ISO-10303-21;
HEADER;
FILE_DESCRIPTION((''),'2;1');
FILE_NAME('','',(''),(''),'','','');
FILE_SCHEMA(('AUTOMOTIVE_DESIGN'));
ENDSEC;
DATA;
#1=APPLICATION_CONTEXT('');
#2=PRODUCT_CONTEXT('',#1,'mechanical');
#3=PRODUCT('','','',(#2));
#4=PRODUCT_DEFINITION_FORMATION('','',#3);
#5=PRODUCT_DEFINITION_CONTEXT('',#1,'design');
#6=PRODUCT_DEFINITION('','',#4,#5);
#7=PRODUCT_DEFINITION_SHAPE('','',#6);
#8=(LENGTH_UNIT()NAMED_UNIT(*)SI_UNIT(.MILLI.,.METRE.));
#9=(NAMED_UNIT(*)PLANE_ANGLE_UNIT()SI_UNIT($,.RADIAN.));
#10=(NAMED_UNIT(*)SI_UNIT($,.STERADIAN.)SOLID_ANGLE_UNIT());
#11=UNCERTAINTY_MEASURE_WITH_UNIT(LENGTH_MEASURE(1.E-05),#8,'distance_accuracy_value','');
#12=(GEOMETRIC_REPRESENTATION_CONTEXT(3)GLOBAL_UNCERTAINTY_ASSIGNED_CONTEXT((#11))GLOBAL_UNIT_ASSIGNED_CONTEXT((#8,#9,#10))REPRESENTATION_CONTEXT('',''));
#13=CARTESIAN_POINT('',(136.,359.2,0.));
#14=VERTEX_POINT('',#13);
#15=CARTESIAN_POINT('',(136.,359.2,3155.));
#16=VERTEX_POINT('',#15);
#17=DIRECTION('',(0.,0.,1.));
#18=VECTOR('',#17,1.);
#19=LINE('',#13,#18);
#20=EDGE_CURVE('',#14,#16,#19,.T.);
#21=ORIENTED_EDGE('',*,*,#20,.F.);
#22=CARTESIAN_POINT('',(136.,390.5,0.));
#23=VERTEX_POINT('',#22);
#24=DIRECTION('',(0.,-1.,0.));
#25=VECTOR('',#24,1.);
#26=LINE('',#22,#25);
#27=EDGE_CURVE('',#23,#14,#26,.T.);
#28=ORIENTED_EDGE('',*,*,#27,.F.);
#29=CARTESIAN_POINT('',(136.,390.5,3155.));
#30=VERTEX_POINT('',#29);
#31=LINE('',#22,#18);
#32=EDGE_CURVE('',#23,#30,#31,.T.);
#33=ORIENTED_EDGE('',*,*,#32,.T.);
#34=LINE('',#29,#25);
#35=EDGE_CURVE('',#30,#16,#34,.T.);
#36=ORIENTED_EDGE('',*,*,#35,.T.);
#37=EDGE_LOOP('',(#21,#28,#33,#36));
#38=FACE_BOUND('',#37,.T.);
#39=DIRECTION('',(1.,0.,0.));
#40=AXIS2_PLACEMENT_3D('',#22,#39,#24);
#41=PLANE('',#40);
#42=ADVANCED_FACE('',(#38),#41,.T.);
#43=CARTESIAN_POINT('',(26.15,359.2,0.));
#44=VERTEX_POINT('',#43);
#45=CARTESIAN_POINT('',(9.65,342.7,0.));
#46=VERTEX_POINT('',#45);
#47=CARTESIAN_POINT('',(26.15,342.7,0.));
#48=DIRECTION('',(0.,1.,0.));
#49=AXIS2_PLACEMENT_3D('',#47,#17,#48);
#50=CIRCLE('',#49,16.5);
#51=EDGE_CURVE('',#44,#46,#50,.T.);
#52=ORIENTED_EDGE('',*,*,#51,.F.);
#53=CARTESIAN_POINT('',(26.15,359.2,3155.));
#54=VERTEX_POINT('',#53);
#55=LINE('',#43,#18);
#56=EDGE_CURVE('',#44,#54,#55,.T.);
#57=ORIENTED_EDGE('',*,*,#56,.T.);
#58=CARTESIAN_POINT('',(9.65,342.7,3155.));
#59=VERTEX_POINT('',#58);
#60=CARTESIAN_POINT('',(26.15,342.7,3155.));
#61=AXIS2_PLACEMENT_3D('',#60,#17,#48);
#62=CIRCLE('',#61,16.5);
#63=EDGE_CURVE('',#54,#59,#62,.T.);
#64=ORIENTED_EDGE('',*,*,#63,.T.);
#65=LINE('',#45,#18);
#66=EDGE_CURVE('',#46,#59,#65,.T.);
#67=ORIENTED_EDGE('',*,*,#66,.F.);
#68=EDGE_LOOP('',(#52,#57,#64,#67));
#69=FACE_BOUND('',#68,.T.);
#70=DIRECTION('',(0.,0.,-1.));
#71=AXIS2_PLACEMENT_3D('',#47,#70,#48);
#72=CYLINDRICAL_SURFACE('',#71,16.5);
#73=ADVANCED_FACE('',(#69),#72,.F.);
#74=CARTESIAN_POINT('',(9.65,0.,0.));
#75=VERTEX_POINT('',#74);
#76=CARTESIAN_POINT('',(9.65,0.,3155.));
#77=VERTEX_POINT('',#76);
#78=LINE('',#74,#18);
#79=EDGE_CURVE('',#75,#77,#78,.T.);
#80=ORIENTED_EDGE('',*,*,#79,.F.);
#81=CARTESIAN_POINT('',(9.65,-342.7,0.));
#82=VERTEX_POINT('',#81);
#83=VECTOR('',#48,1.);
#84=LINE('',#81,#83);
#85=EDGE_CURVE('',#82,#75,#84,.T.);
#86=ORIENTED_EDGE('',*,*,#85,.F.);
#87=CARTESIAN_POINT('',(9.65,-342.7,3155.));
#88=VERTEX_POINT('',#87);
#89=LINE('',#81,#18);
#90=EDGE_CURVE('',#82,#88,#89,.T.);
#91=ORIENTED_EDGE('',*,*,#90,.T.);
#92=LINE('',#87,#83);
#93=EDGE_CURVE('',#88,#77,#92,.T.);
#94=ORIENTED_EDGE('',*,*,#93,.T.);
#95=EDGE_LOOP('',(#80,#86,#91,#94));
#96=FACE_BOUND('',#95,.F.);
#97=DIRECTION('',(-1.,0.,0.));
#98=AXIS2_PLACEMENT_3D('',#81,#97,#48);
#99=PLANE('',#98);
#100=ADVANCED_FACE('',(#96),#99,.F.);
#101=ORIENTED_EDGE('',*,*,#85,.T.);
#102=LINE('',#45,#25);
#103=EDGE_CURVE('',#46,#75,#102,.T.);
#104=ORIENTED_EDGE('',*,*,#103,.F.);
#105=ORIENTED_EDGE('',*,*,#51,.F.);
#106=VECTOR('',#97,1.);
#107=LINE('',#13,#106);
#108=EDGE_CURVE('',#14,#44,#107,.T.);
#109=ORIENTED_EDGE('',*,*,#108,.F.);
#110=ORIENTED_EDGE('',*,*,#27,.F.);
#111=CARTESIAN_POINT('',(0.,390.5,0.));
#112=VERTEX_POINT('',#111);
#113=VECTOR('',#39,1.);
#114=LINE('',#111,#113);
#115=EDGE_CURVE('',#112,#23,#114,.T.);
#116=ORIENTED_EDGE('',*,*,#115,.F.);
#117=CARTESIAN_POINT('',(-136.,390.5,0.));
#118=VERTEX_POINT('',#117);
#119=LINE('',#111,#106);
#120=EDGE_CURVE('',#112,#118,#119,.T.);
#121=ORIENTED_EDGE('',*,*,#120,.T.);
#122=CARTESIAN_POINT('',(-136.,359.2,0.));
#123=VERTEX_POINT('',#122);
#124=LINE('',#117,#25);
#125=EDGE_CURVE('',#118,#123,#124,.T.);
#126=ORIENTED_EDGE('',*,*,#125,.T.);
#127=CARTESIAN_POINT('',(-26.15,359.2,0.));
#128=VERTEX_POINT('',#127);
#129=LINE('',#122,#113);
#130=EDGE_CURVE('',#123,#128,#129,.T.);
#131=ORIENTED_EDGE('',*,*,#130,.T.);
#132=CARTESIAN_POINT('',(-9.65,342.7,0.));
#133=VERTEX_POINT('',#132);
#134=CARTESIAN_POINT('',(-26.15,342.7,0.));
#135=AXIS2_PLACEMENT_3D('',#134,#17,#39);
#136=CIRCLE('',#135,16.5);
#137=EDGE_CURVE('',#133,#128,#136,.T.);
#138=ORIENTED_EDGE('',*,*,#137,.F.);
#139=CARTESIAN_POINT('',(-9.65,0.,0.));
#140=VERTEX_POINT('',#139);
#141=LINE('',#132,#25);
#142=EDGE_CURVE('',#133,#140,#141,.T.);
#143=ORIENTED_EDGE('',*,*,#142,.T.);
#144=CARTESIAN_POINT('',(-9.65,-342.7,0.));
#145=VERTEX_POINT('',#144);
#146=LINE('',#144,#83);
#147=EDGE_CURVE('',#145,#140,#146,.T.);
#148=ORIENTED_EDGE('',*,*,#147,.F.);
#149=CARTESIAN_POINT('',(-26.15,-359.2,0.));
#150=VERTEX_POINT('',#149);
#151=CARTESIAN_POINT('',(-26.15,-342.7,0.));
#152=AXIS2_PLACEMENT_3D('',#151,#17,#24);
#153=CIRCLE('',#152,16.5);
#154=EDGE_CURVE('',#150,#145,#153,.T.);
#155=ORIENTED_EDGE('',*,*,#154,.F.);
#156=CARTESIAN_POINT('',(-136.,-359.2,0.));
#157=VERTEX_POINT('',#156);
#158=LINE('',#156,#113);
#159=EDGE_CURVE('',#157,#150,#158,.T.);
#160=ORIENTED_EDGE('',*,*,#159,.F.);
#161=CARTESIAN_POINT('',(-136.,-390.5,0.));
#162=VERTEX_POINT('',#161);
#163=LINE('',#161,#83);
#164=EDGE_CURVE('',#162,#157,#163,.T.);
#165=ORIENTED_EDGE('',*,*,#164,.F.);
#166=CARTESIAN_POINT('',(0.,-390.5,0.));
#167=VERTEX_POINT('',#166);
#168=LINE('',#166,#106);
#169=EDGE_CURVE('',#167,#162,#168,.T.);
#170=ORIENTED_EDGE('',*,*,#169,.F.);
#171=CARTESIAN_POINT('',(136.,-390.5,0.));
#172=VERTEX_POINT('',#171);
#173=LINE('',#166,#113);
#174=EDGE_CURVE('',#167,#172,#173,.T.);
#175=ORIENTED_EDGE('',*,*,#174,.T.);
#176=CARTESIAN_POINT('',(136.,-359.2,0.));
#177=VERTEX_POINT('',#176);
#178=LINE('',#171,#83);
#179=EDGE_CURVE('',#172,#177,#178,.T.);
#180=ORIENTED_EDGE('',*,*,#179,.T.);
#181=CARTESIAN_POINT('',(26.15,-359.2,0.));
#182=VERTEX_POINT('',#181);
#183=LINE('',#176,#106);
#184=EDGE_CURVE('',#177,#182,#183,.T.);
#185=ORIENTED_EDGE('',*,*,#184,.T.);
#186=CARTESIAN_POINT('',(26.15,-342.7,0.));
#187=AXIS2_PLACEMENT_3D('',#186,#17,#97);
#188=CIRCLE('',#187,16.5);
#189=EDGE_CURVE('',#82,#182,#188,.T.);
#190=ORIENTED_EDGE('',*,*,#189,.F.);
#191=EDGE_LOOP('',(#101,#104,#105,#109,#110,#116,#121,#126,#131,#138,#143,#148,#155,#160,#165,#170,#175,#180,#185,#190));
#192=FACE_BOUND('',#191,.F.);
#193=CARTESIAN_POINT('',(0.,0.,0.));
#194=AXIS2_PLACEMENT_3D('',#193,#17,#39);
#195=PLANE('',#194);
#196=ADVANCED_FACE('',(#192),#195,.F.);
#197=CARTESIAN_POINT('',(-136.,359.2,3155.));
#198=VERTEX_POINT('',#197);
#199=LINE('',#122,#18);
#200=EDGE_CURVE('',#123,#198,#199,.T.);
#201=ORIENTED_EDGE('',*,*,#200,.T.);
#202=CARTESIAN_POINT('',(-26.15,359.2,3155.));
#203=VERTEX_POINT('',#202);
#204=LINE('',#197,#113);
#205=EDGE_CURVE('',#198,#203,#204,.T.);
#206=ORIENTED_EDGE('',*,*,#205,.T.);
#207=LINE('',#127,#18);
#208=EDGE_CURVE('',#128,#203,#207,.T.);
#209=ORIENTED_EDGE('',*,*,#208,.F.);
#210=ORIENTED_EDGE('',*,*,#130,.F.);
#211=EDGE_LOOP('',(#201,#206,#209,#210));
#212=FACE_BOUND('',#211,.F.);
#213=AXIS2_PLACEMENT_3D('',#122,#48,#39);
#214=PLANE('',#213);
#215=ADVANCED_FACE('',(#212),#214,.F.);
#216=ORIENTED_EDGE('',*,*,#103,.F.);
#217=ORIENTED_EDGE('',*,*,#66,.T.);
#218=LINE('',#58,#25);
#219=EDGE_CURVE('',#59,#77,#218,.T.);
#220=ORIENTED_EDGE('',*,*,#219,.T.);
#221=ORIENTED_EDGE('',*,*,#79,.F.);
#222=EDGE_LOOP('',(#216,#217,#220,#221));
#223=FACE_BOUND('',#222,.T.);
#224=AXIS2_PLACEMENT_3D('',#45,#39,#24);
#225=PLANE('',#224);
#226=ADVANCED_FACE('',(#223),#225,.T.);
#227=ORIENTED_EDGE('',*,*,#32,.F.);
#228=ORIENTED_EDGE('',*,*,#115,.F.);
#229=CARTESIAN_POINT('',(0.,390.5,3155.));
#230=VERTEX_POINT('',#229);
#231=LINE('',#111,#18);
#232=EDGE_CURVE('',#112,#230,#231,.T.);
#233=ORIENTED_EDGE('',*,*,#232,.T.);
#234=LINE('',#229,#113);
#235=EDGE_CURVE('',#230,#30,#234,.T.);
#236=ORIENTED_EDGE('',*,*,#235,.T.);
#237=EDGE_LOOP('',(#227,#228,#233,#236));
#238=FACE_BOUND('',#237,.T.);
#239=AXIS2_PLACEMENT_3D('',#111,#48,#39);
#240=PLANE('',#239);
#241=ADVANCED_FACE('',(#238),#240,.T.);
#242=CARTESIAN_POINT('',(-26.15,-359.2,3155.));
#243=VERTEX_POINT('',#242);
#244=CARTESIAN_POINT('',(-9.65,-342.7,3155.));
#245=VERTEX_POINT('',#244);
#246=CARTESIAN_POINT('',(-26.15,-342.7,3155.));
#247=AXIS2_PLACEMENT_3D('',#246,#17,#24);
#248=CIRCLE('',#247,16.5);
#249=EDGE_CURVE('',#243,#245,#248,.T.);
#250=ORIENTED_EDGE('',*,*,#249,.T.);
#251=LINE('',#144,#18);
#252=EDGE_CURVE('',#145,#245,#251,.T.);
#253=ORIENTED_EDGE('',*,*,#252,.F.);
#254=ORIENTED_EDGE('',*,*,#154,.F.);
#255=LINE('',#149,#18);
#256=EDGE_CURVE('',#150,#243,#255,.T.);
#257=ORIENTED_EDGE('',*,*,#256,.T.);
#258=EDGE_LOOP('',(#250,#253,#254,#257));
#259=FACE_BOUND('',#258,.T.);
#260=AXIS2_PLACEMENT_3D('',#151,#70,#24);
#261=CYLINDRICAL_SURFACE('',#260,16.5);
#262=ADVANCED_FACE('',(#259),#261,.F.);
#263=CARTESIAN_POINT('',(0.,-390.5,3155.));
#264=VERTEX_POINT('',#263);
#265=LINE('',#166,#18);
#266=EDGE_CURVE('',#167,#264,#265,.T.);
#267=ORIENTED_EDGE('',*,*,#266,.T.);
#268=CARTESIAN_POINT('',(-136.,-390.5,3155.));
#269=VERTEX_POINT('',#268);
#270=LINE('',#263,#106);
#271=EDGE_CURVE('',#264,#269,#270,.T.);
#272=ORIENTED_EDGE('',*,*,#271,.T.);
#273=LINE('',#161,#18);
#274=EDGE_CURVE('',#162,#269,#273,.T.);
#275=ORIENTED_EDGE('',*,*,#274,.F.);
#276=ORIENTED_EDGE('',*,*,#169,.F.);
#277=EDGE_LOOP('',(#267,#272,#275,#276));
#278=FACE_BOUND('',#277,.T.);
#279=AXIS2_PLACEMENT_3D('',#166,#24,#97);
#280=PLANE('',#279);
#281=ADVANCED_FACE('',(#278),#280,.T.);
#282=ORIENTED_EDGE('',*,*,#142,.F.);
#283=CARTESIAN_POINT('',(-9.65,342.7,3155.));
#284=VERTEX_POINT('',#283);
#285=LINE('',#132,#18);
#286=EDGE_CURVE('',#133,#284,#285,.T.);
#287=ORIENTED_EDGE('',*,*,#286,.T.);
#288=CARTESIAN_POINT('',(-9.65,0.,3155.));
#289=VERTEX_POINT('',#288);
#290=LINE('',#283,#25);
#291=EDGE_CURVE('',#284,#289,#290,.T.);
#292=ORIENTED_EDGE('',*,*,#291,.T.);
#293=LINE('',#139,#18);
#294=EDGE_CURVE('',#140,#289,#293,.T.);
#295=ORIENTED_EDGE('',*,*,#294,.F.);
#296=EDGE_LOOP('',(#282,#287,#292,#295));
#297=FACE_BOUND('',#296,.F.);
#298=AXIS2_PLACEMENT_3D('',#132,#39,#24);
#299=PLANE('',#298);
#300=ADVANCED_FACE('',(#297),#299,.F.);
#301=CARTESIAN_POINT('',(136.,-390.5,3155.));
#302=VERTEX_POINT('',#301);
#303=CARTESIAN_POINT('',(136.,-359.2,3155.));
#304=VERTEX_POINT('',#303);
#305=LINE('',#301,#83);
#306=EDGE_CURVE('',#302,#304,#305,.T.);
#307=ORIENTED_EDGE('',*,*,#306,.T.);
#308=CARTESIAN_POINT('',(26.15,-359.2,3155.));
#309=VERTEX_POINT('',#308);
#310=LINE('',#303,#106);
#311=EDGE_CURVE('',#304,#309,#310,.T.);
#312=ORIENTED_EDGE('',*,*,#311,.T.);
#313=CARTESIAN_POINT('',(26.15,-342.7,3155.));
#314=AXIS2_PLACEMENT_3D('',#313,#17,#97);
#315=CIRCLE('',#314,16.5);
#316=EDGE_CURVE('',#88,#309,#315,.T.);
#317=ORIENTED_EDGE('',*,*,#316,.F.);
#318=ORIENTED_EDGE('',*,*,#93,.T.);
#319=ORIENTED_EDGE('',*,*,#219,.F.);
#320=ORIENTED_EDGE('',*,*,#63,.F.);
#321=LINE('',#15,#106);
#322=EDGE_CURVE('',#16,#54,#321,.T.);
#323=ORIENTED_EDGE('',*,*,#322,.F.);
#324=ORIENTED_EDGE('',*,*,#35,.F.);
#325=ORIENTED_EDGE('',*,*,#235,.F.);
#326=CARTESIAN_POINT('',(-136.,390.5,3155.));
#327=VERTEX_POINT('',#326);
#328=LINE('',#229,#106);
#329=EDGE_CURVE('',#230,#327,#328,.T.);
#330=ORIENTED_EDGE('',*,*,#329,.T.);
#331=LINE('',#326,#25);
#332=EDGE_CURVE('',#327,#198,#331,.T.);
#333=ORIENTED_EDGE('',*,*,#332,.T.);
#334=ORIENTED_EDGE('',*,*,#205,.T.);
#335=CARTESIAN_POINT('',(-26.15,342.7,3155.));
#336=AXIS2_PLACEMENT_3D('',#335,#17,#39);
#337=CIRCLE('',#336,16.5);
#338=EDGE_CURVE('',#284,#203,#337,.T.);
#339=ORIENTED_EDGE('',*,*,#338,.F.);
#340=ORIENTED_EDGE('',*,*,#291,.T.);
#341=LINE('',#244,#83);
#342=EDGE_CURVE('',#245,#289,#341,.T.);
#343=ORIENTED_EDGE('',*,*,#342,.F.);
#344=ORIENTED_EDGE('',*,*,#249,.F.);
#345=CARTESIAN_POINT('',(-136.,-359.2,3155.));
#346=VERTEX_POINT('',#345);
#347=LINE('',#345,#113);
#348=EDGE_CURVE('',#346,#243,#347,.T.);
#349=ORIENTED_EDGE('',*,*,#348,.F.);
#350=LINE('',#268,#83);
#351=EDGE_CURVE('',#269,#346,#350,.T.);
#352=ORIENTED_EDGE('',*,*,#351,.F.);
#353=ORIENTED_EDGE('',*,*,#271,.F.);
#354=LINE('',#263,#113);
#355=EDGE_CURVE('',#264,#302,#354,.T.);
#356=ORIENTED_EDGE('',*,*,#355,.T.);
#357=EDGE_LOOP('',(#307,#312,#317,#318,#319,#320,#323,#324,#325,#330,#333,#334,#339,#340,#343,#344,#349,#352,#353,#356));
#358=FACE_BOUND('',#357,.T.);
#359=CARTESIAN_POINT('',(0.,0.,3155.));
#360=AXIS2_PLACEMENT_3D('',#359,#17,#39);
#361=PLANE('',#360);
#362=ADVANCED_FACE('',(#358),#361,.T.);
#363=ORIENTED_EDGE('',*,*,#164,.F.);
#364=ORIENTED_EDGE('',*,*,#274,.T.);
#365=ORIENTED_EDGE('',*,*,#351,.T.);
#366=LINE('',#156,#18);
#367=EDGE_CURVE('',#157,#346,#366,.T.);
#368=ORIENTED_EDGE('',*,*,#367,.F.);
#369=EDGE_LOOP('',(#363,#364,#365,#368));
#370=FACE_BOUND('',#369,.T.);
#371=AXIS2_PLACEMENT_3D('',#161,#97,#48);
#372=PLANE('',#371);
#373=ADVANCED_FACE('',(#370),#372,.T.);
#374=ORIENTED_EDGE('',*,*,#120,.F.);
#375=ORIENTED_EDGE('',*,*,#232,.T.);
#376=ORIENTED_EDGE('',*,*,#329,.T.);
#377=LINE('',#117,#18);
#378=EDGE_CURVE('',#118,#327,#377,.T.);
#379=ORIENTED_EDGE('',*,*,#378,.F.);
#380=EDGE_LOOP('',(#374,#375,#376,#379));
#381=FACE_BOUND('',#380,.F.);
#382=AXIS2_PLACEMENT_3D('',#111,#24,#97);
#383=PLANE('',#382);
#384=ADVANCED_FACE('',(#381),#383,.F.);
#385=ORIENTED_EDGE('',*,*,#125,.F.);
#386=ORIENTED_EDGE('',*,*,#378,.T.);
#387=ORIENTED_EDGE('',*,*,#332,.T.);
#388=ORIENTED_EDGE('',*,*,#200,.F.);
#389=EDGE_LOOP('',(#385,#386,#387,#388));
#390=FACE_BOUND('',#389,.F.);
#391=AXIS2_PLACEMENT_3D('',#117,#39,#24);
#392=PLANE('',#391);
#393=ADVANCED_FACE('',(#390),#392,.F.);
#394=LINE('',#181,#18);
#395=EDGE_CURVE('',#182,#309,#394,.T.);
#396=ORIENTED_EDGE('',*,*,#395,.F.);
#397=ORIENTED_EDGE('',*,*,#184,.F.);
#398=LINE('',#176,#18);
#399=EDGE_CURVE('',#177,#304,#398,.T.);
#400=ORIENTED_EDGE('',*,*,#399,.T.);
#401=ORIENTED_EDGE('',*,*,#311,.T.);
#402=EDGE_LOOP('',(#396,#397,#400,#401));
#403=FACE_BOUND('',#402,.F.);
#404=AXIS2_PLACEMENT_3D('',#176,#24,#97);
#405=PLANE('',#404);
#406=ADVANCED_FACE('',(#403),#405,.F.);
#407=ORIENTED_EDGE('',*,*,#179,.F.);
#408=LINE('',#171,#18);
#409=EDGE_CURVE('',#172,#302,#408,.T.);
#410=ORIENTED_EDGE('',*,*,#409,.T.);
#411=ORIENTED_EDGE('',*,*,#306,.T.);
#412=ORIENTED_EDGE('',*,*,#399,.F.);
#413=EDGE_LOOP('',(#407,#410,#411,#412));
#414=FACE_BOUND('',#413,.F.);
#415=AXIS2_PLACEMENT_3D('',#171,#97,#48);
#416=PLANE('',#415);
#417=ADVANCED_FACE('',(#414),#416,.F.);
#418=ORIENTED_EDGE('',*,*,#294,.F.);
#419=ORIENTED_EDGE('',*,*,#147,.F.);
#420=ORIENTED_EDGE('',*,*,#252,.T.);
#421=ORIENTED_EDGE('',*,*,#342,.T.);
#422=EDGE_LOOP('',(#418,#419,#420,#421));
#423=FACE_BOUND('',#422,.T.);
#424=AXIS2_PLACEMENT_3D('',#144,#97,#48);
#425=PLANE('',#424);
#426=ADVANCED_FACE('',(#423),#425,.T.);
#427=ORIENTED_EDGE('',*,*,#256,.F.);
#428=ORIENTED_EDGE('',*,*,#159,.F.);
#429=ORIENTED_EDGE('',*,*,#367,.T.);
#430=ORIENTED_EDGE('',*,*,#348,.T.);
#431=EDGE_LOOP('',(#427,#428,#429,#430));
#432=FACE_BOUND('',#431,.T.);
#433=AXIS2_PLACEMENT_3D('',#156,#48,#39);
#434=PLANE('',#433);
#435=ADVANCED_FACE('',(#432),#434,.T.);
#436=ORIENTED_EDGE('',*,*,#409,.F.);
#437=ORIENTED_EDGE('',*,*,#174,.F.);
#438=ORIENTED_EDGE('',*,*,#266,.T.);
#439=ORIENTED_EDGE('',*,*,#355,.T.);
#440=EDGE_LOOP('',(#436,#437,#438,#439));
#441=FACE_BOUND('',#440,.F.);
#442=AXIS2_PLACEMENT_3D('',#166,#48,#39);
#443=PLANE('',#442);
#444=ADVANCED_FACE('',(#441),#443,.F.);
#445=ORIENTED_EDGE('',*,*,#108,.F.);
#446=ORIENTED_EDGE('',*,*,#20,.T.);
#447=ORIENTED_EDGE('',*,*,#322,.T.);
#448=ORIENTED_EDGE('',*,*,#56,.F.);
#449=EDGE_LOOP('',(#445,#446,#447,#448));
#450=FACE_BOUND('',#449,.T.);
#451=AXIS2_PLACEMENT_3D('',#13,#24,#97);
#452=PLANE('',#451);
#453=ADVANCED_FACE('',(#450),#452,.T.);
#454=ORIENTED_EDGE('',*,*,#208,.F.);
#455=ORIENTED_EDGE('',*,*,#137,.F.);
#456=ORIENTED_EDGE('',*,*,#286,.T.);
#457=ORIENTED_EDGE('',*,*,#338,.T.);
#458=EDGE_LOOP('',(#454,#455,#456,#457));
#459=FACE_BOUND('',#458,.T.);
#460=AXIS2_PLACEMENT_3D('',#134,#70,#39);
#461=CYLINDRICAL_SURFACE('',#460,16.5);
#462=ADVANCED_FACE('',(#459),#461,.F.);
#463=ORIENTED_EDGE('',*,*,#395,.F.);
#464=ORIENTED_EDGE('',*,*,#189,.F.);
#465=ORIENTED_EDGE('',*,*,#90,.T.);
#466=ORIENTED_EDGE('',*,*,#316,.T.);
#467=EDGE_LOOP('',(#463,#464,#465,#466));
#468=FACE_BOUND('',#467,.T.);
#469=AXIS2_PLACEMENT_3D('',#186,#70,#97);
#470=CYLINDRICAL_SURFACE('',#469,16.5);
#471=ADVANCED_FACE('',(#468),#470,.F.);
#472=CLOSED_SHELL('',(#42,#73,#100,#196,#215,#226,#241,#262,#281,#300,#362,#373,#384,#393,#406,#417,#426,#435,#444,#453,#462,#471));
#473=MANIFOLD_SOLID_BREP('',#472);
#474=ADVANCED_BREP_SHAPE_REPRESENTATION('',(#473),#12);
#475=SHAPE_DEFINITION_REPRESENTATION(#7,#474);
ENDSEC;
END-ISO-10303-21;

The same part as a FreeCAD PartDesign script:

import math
import FreeCAD as App
import Part
import Sketcher

V = App.Vector
Q = App.Units.Quantity

doc = App.newDocument("Part")
body = doc.addObject("PartDesign::Body", "Body")

sketch1 = body.newObject("Sketcher::SketchObject", "Sketch")
sketch1.AttachmentSupport = (doc.getObject("XY_Plane"), [""])
sketch1.MapMode = "FlatFace"
sketch1.addGeometry(Part.LineSegment(V(-136, -359.2, 0), V(-136, -390.5, 0)), False)
sketch1.addGeometry(Part.LineSegment(V(-136, -390.5, 0), V(136, -390.5, 0)), False)
sketch1.addGeometry(Part.LineSegment(V(136, -390.5, 0), V(136, -359.2, 0)), False)
sketch1.addGeometry(Part.LineSegment(V(136, -359.2, 0), V(26.15, -359.2, 0)), False)
sketch1.addGeometry(Part.ArcOfCircle(Part.Circle(V(26.15, -342.7, 0), V(0, 0, 1), 16.5), math.radians(180), math.radians(270)), False)
sketch1.addGeometry(Part.LineSegment(V(9.65, -342.7, 0), V(9.65, 342.7, 0)), False)
sketch1.addGeometry(Part.ArcOfCircle(Part.Circle(V(26.15, 342.7, 0), V(0, 0, 1), 16.5), math.radians(90), math.radians(180)), False)
sketch1.addGeometry(Part.LineSegment(V(26.15, 359.2, 0), V(136, 359.2, 0)), False)
sketch1.addGeometry(Part.LineSegment(V(136, 359.2, 0), V(136, 390.5, 0)), False)
sketch1.addGeometry(Part.LineSegment(V(136, 390.5, 0), V(-136, 390.5, 0)), False)
sketch1.addGeometry(Part.LineSegment(V(-136, 390.5, 0), V(-136, 359.2, 0)), False)
sketch1.addGeometry(Part.LineSegment(V(-136, 359.2, 0), V(-26.15, 359.2, 0)), False)
sketch1.addGeometry(Part.ArcOfCircle(Part.Circle(V(-26.15, 342.7, 0), V(0, 0, 1), 16.5), math.radians(0), math.radians(90)), False)
sketch1.addGeometry(Part.LineSegment(V(-9.65, 342.7, 0), V(-9.65, -342.7, 0)), False)
sketch1.addGeometry(Part.ArcOfCircle(Part.Circle(V(-26.15, -342.7, 0), V(0, 0, 1), 16.5), math.radians(-90), math.radians(0)), False)
sketch1.addGeometry(Part.LineSegment(V(-26.15, -359.2, 0), V(-136, -359.2, 0)), False)
sketch1.addConstraint(Sketcher.Constraint("Coincident", 0, 2, 1, 1))
sketch1.addConstraint(Sketcher.Constraint("Coincident", 1, 2, 2, 1))
sketch1.addConstraint(Sketcher.Constraint("Coincident", 2, 2, 3, 1))
sketch1.addConstraint(Sketcher.Constraint("Tangent", 3, 2, 4, 2))
sketch1.addConstraint(Sketcher.Constraint("Tangent", 4, 1, 5, 1))
sketch1.addConstraint(Sketcher.Constraint("Tangent", 5, 2, 6, 2))
sketch1.addConstraint(Sketcher.Constraint("Tangent", 6, 1, 7, 1))
sketch1.addConstraint(Sketcher.Constraint("Coincident", 7, 2, 8, 1))
sketch1.addConstraint(Sketcher.Constraint("Coincident", 8, 2, 9, 1))
sketch1.addConstraint(Sketcher.Constraint("Coincident", 9, 2, 10, 1))
sketch1.addConstraint(Sketcher.Constraint("Coincident", 10, 2, 11, 1))
sketch1.addConstraint(Sketcher.Constraint("Tangent", 11, 2, 12, 2))
sketch1.addConstraint(Sketcher.Constraint("Tangent", 12, 1, 13, 1))
sketch1.addConstraint(Sketcher.Constraint("Tangent", 13, 2, 14, 2))
sketch1.addConstraint(Sketcher.Constraint("Tangent", 14, 1, 15, 1))
sketch1.addConstraint(Sketcher.Constraint("Coincident", 15, 2, 0, 1))
sketch1.addConstraint(Sketcher.Constraint("Vertical", 0))
sketch1.addConstraint(Sketcher.Constraint("Horizontal", 1))
sketch1.addConstraint(Sketcher.Constraint("Vertical", 2))
sketch1.addConstraint(Sketcher.Constraint("Horizontal", 3))
sketch1.addConstraint(Sketcher.Constraint("Vertical", 5))
sketch1.addConstraint(Sketcher.Constraint("Horizontal", 7))
sketch1.addConstraint(Sketcher.Constraint("Vertical", 8))
sketch1.addConstraint(Sketcher.Constraint("Horizontal", 9))
sketch1.addConstraint(Sketcher.Constraint("Vertical", 10))
sketch1.addConstraint(Sketcher.Constraint("Horizontal", 11))
sketch1.addConstraint(Sketcher.Constraint("Vertical", 13))
sketch1.addConstraint(Sketcher.Constraint("Horizontal", 15))
sketch1.addConstraint(Sketcher.Constraint("Equal", 4, 6))
sketch1.addConstraint(Sketcher.Constraint("Equal", 6, 12))
sketch1.addConstraint(Sketcher.Constraint("Equal", 12, 14))
sketch1.addConstraint(Sketcher.Constraint("Symmetric", 4, 3, 12, 3, -1, 1))
sketch1.addConstraint(Sketcher.Constraint("Symmetric", 0, 2, 8, 2, -1, 1))
sketch1.addConstraint(Sketcher.Constraint("Symmetric", 7, 2, 10, 2, -2))
sketch1.addConstraint(Sketcher.Constraint("Symmetric", 2, 2, 15, 2, -2))
sketch1.addConstraint(Sketcher.Constraint("Radius", 4, Q("16.5 mm")))
sketch1.addConstraint(Sketcher.Constraint("DistanceY", 0, 2, 0, 1, Q("31.3 mm")))
sketch1.addConstraint(Sketcher.Constraint("DistanceX", 0, 2, -1, 1, Q("136 mm")))
sketch1.addConstraint(Sketcher.Constraint("DistanceY", 0, 2, -1, 1, Q("390.5 mm")))
sketch1.addConstraint(Sketcher.Constraint("DistanceX", -1, 1, 4, 1, Q("9.65 mm")))
pad1 = body.newObject("PartDesign::Pad", "Pad")
pad1.Profile = sketch1
pad1.Length = 3155

doc.recompute()
